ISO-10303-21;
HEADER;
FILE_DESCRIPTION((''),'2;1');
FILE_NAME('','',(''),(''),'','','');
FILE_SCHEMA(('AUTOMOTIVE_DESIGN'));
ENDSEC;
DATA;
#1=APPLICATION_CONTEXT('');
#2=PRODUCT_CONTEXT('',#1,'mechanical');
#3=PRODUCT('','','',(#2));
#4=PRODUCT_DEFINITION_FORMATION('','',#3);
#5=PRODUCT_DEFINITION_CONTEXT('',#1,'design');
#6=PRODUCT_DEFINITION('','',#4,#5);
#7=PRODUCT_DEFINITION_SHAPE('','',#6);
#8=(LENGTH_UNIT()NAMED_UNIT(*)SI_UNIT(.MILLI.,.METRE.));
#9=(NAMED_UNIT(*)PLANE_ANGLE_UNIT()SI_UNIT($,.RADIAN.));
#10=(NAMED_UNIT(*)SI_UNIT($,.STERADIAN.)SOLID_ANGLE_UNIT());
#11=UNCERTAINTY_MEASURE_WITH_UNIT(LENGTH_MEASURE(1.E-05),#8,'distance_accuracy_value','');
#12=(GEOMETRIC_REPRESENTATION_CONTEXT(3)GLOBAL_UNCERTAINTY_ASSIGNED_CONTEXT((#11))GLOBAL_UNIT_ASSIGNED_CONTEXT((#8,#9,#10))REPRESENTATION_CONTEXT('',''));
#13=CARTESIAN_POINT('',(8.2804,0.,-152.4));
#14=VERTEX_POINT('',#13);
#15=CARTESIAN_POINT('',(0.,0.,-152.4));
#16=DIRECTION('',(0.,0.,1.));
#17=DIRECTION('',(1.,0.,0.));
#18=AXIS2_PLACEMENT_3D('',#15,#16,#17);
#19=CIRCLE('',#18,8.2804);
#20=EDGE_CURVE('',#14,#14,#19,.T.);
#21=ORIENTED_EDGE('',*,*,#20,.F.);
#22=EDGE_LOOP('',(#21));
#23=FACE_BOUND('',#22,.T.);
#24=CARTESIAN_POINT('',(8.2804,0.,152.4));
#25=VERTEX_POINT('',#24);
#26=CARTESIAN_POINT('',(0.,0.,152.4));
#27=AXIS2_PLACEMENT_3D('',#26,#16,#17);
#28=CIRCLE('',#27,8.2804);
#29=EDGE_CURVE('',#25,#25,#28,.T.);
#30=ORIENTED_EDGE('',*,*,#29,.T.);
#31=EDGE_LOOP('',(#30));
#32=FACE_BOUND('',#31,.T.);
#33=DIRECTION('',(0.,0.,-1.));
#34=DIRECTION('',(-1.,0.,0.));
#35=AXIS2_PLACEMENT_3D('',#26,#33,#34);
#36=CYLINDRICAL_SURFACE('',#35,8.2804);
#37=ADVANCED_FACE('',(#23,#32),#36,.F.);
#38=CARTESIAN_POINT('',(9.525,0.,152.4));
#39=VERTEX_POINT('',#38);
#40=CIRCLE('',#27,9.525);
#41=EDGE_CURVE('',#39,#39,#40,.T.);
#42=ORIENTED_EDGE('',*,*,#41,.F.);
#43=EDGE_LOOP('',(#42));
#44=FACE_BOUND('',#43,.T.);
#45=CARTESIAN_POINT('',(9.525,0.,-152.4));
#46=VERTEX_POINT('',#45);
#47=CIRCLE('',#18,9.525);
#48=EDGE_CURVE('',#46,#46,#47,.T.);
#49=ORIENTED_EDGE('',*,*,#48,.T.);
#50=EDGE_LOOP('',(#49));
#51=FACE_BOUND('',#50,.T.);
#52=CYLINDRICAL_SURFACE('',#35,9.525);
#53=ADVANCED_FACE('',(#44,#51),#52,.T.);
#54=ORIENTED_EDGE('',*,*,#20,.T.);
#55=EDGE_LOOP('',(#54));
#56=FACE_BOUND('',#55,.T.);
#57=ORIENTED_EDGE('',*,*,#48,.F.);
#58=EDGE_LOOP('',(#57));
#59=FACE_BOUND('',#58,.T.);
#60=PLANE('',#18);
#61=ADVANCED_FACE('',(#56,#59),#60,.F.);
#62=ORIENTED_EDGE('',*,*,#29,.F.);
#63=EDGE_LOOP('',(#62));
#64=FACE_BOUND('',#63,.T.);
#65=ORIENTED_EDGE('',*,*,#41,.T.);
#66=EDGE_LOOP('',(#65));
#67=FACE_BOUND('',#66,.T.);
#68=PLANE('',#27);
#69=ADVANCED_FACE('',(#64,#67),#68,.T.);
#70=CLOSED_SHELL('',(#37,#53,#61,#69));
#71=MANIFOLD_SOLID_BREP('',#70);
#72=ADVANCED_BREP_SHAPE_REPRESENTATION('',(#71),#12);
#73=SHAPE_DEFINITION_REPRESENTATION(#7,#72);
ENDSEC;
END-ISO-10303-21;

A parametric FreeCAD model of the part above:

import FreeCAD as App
import Part
import Sketcher
from FreeCAD import Vector
Q = App.Units.Quantity

doc = App.newDocument("Part")
body = doc.addObject("PartDesign::Body", "Body")

# Sketch on XY plane
sketch1 = doc.addObject("Sketcher::SketchObject", "Sketch")
body.addObject(sketch1)
sketch1.AttachmentSupport = (doc.XY_Plane, [""])
sketch1.MapMode = "FlatFace"
sketch1.addGeometry([
    Part.Circle(Vector(0, 0, 0), Vector(0, 0, 1), 10),
    Part.Circle(Vector(0, 0, 0), Vector(0, 0, 1), 8),
], False)
sketch1.addConstraint([
    Sketcher.Constraint("Coincident", 0, 3, -1, 1),
    Sketcher.Constraint("Coincident", 1, 3, -1, 1),
    Sketcher.Constraint("Diameter", 0, Q("0.75 in")),
    Sketcher.Constraint("Diameter", 1, Q("0.652 in")),
])
pad1 = doc.addObject("PartDesign::Pad", "Pad")
body.addObject(pad1)
pad1.Profile = sketch1
pad1.Type = "TwoLengths"
pad1.Length = Q("6 in")
pad1.Length2 = Q("6 in")

doc.recompute()
